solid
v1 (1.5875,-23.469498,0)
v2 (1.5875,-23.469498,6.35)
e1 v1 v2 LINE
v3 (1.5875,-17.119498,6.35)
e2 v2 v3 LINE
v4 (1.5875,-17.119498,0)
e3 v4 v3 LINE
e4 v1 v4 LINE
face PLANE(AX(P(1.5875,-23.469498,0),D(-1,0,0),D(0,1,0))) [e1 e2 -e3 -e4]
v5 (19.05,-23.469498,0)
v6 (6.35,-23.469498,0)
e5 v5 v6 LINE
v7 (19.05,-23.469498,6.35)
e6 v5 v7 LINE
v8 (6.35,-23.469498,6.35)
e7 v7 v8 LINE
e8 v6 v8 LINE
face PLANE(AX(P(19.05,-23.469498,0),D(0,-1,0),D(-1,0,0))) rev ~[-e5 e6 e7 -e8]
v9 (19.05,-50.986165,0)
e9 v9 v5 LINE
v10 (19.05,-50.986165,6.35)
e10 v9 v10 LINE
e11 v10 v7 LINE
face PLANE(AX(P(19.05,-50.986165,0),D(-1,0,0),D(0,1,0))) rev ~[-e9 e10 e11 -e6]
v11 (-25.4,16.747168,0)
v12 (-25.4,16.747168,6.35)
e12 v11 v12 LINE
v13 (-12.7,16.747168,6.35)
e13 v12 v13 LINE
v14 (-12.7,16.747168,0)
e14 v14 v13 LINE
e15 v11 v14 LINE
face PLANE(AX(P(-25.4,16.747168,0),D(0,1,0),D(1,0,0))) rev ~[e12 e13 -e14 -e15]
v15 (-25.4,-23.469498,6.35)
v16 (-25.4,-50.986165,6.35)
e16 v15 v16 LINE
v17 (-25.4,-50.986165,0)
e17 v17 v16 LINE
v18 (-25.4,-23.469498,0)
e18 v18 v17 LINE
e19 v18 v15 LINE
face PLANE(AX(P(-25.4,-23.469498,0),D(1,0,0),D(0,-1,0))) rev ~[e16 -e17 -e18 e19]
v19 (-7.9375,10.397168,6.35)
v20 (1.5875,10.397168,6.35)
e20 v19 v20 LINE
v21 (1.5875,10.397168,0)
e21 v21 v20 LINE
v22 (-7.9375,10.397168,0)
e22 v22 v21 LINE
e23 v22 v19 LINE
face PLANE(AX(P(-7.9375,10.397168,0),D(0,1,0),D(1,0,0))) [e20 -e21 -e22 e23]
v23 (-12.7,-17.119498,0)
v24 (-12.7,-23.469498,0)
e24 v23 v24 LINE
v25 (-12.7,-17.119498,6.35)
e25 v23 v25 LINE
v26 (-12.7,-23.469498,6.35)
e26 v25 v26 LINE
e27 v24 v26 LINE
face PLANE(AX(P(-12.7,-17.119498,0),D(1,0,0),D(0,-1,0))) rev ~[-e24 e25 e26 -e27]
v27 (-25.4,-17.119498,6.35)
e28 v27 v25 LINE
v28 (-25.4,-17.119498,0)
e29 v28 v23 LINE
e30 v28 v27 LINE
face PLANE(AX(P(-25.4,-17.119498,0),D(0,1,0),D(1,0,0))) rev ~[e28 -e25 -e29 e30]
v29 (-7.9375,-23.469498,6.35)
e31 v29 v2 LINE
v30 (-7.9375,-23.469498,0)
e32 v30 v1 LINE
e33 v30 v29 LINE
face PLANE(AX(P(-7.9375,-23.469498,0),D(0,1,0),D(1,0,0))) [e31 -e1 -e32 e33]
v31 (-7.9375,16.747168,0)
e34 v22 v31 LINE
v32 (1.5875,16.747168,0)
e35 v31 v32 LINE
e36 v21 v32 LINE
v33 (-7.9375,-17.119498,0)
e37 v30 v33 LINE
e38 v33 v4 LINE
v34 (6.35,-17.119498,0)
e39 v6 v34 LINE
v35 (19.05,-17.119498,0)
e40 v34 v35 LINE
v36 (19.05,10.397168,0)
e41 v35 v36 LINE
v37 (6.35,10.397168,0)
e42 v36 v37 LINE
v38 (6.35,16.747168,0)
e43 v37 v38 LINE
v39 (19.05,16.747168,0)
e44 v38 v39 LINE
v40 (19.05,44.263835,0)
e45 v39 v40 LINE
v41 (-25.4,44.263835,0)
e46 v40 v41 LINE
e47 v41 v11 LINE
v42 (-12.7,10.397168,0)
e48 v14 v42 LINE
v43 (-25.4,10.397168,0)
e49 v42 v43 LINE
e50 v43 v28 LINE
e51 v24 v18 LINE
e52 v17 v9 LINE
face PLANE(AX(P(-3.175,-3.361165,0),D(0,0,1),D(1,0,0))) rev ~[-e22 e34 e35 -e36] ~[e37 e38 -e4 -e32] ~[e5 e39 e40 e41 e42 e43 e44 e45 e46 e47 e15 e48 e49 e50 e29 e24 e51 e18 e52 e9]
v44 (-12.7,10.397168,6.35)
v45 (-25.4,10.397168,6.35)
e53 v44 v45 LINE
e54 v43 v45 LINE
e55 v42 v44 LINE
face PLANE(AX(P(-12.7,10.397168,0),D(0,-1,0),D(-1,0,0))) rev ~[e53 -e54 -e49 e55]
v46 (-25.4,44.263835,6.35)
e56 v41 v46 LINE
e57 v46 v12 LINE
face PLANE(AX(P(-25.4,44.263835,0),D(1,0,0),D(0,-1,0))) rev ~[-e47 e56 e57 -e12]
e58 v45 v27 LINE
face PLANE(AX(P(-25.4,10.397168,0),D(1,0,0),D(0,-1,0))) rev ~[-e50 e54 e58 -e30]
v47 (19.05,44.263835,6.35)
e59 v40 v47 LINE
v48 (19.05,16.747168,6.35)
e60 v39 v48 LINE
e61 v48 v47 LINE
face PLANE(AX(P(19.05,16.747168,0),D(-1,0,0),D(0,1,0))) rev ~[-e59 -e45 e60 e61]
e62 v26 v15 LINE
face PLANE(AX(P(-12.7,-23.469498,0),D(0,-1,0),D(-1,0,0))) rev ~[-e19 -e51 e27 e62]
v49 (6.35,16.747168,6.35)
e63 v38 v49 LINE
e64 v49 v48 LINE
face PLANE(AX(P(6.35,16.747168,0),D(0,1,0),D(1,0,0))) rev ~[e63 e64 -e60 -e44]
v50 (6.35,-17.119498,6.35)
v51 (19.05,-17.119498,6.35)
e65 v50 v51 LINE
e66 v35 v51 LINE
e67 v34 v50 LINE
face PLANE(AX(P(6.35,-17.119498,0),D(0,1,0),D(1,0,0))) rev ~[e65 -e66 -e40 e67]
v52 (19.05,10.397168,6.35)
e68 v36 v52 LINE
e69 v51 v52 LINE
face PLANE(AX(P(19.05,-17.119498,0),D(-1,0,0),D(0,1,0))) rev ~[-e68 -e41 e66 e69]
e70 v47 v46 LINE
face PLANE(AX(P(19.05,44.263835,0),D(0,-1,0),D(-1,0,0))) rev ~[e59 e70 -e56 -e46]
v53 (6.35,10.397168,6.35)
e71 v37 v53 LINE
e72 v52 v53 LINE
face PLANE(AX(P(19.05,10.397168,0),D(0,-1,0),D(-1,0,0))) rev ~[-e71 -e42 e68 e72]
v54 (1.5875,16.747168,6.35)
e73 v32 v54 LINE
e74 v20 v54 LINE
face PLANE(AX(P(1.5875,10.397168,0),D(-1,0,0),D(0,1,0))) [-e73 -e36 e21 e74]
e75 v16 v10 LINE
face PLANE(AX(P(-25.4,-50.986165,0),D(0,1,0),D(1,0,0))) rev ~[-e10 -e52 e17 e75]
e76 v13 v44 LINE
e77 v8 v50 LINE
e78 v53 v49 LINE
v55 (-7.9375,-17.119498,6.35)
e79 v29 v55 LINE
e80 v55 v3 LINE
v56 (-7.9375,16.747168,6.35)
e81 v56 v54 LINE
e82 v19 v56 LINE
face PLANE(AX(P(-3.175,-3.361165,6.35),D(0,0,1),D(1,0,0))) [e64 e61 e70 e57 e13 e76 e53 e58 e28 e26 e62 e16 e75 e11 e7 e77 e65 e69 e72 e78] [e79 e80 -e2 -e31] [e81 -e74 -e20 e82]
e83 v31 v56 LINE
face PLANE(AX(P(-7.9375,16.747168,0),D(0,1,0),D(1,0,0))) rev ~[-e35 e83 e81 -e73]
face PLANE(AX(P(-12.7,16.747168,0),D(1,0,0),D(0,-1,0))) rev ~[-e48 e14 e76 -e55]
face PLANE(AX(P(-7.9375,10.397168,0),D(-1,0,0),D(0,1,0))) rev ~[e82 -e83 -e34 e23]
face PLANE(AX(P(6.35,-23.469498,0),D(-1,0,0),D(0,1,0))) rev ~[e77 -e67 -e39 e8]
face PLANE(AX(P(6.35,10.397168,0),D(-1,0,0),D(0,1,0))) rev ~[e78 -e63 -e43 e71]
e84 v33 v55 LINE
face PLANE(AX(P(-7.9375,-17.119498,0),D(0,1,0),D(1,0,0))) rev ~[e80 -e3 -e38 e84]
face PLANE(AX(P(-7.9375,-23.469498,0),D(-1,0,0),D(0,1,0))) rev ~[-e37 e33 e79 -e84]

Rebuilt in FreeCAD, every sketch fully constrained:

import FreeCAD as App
import Part
import Sketcher

V = App.Vector
Q = App.Units.Quantity

doc = App.newDocument("Part")
body = doc.addObject("PartDesign::Body", "Body")

# Sketch on XY plane
sketch1 = body.newObject("Sketcher::SketchObject", "Sketch")
sketch1.AttachmentSupport = (doc.getObject("XY_Plane"), [""])
sketch1.MapMode = "FlatFace"
sketch1.addGeometry([
    Part.LineSegment(V(-25.4, -23.469498, 0), V(-25.4, -50.986165, 0)),  # 0
    Part.LineSegment(V(-25.4, -50.986165, 0), V(19.05, -50.986165, 0)),  # 1
    Part.LineSegment(V(19.05, -50.986165, 0), V(19.05, -23.469498, 0)),  # 2
    Part.LineSegment(V(19.05, -23.469498, 0), V(6.35, -23.469498, 0)),  # 3
    Part.LineSegment(V(6.35, -23.469498, 0), V(6.35, -17.119498, 0)),  # 4
    Part.LineSegment(V(6.35, -17.119498, 0), V(19.05, -17.119498, 0)),  # 5
    Part.LineSegment(V(19.05, -17.119498, 0), V(19.05, 10.397168, 0)),  # 6
    Part.LineSegment(V(19.05, 10.397168, 0), V(6.35, 10.397168, 0)),  # 7
    Part.LineSegment(V(6.35, 10.397168, 0), V(6.35, 16.747168, 0)),  # 8
    Part.LineSegment(V(6.35, 16.747168, 0), V(19.05, 16.747168, 0)),  # 9
    Part.LineSegment(V(19.05, 16.747168, 0), V(19.05, 44.263835, 0)),  # 10
    Part.LineSegment(V(19.05, 44.263835, 0), V(-25.4, 44.263835, 0)),  # 11
    Part.LineSegment(V(-25.4, 44.263835, 0), V(-25.4, 16.747168, 0)),  # 12
    Part.LineSegment(V(-25.4, 16.747168, 0), V(-12.7, 16.747168, 0)),  # 13
    Part.LineSegment(V(-12.7, 16.747168, 0), V(-12.7, 10.397168, 0)),  # 14
    Part.LineSegment(V(-12.7, 10.397168, 0), V(-25.4, 10.397168, 0)),  # 15
    Part.LineSegment(V(-25.4, 10.397168, 0), V(-25.4, -17.119498, 0)),  # 16
    Part.LineSegment(V(-25.4, -17.119498, 0), V(-12.7, -17.119498, 0)),  # 17
    Part.LineSegment(V(-12.7, -17.119498, 0), V(-12.7, -23.469498, 0)),  # 18
    Part.LineSegment(V(-12.7, -23.469498, 0), V(-25.4, -23.469498, 0)),  # 19
    Part.LineSegment(V(1.5875, -23.469498, 0), V(-7.9375, -23.469498, 0)),  # 20
    Part.LineSegment(V(-7.9375, -23.469498, 0), V(-7.9375, -17.119498, 0)),  # 21
    Part.LineSegment(V(-7.9375, -17.119498, 0), V(1.5875, -17.119498, 0)),  # 22
    Part.LineSegment(V(1.5875, -17.119498, 0), V(1.5875, -23.469498, 0)),  # 23
    Part.LineSegment(V(1.5875, 10.397168, 0), V(-7.9375, 10.397168, 0)),  # 24
    Part.LineSegment(V(-7.9375, 10.397168, 0), V(-7.9375, 16.747168, 0)),  # 25
    Part.LineSegment(V(-7.9375, 16.747168, 0), V(1.5875, 16.747168, 0)),  # 26
    Part.LineSegment(V(1.5875, 16.747168, 0), V(1.5875, 10.397168, 0)),  # 27
], False)
sketch1.addConstraint([
    Sketcher.Constraint("Coincident", 0, 2, 1, 1),
    Sketcher.Constraint("Coincident", 1, 2, 2, 1),
    Sketcher.Constraint("Coincident", 2, 2, 3, 1),
    Sketcher.Constraint("Coincident", 3, 2, 4, 1),
    Sketcher.Constraint("Coincident", 4, 2, 5, 1),
    Sketcher.Constraint("Coincident", 5, 2, 6, 1),
    Sketcher.Constraint("Coincident", 6, 2, 7, 1),
    Sketcher.Constraint("Coincident", 7, 2, 8, 1),
    Sketcher.Constraint("Coincident", 8, 2, 9, 1),
    Sketcher.Constraint("Coincident", 9, 2, 10, 1),
    Sketcher.Constraint("Coincident", 10, 2, 11, 1),
    Sketcher.Constraint("Coincident", 11, 2, 12, 1),
    Sketcher.Constraint("Coincident", 12, 2, 13, 1),
    Sketcher.Constraint("Coincident", 13, 2, 14, 1),
    Sketcher.Constraint("Coincident", 14, 2, 15, 1),
    Sketcher.Constraint("Coincident", 15, 2, 16, 1),
    Sketcher.Constraint("Coincident", 16, 2, 17, 1),
    Sketcher.Constraint("Coincident", 17, 2, 18, 1),
    Sketcher.Constraint("Coincident", 18, 2, 19, 1),
    Sketcher.Constraint("Coincident", 19, 2, 0, 1),
    Sketcher.Constraint("Coincident", 20, 2, 21, 1),
    Sketcher.Constraint("Coincident", 21, 2, 22, 1),
    Sketcher.Constraint("Coincident", 22, 2, 23, 1),
    Sketcher.Constraint("Coincident", 23, 2, 20, 1),
    Sketcher.Constraint("Coincident", 24, 2, 25, 1),
    Sketcher.Constraint("Coincident", 25, 2, 26, 1),
    Sketcher.Constraint("Coincident", 26, 2, 27, 1),
    Sketcher.Constraint("Coincident", 27, 2, 24, 1),
    Sketcher.Constraint("Vertical", 0),
    Sketcher.Constraint("Horizontal", 1),
    Sketcher.Constraint("Vertical", 2),
    Sketcher.Constraint("Horizontal", 3),
    Sketcher.Constraint("Vertical", 4),
    Sketcher.Constraint("Horizontal", 5),
    Sketcher.Constraint("Vertical", 6),
    Sketcher.Constraint("Horizontal", 7),
    Sketcher.Constraint("Vertical", 8),
    Sketcher.Constraint("Horizontal", 9),
    Sketcher.Constraint("Vertical", 10),
    Sketcher.Constraint("Horizontal", 11),
    Sketcher.Constraint("Vertical", 12),
    Sketcher.Constraint("Horizontal", 13),
    Sketcher.Constraint("Vertical", 14),
    Sketcher.Constraint("Horizontal", 15),
    Sketcher.Constraint("Vertical", 16),
    Sketcher.Constraint("Horizontal", 17),
    Sketcher.Constraint("Vertical", 18),
    Sketcher.Constraint("Horizontal", 19),
    Sketcher.Constraint("Horizontal", 20),
    Sketcher.Constraint("Vertical", 21),
    Sketcher.Constraint("Horizontal", 22),
    Sketcher.Constraint("Vertical", 23),
    Sketcher.Constraint("Horizontal", 24),
    Sketcher.Constraint("Vertical", 25),
    Sketcher.Constraint("Horizontal", 26),
    Sketcher.Constraint("Vertical", 27),
    Sketcher.Constraint("Horizontal", 9, 2, 12, 2),
    Sketcher.Constraint("Horizontal", 7, 2, 14, 2),
    Sketcher.Constraint("Horizontal", 5, 2, 16, 2),
    Sketcher.Constraint("Horizontal", 3, 2, 18, 2),
    Sketcher.Constraint("Horizontal", 19, 2, 20, 2),
    Sketcher.Constraint("Horizontal", 17, 2, 21, 2),
    Sketcher.Constraint("Horizontal", 15, 2, 24, 2),
    Sketcher.Constraint("Horizontal", 13, 2, 25, 2),
    Sketcher.Constraint("Vertical", 2, 2, 5, 2),
    Sketcher.Constraint("Vertical", 4, 2, 7, 2),
    Sketcher.Constraint("Vertical", 6, 2, 9, 2),
    Sketcher.Constraint("Vertical", 0, 2, 11, 2),
    Sketcher.Constraint("Vertical", 12, 2, 15, 2),
    Sketcher.Constraint("Vertical", 14, 2, 17, 2),
    Sketcher.Constraint("Vertical", 21, 2, 24, 2),
    Sketcher.Constraint("Vertical", 23, 2, 26, 2),
    Sketcher.Constraint("Equal", 9, 13),
    Sketcher.Constraint("Equal", 2, 6),
    Sketcher.Constraint("Equal", 4, 8),
    Sketcher.Constraint("Equal", 6, 10),
    Sketcher.Constraint("DistanceX", 3, 2, 3, 1, Q("0.5 in")),
    Sketcher.Constraint("DistanceX", 0, 2, -1, 1, Q("1 in")),
    Sketcher.Constraint("DistanceX", 1, 1, 1, 2, Q("1.75 in")),
    Sketcher.Constraint("DistanceY", 4, 1, 4, 2, Q("0.25 in")),
    Sketcher.Constraint("DistanceX", 20, 2, 20, 1, Q("0.375 in")),
    Sketcher.Constraint("DistanceX", 20, 2, -1, 1, Q("0.3125 in")),
    Sketcher.Constraint("DistanceY", 2, 2, -1, 1, Q("23.469498 mm")),
    Sketcher.Constraint("DistanceY", 0, 2, 0, 1, Q("27.516667 mm")),
])
pad1 = body.newObject("PartDesign::Pad", "Pad")
pad1.Profile = sketch1
pad1.Length = Q("0.25 in")

doc.recompute()
